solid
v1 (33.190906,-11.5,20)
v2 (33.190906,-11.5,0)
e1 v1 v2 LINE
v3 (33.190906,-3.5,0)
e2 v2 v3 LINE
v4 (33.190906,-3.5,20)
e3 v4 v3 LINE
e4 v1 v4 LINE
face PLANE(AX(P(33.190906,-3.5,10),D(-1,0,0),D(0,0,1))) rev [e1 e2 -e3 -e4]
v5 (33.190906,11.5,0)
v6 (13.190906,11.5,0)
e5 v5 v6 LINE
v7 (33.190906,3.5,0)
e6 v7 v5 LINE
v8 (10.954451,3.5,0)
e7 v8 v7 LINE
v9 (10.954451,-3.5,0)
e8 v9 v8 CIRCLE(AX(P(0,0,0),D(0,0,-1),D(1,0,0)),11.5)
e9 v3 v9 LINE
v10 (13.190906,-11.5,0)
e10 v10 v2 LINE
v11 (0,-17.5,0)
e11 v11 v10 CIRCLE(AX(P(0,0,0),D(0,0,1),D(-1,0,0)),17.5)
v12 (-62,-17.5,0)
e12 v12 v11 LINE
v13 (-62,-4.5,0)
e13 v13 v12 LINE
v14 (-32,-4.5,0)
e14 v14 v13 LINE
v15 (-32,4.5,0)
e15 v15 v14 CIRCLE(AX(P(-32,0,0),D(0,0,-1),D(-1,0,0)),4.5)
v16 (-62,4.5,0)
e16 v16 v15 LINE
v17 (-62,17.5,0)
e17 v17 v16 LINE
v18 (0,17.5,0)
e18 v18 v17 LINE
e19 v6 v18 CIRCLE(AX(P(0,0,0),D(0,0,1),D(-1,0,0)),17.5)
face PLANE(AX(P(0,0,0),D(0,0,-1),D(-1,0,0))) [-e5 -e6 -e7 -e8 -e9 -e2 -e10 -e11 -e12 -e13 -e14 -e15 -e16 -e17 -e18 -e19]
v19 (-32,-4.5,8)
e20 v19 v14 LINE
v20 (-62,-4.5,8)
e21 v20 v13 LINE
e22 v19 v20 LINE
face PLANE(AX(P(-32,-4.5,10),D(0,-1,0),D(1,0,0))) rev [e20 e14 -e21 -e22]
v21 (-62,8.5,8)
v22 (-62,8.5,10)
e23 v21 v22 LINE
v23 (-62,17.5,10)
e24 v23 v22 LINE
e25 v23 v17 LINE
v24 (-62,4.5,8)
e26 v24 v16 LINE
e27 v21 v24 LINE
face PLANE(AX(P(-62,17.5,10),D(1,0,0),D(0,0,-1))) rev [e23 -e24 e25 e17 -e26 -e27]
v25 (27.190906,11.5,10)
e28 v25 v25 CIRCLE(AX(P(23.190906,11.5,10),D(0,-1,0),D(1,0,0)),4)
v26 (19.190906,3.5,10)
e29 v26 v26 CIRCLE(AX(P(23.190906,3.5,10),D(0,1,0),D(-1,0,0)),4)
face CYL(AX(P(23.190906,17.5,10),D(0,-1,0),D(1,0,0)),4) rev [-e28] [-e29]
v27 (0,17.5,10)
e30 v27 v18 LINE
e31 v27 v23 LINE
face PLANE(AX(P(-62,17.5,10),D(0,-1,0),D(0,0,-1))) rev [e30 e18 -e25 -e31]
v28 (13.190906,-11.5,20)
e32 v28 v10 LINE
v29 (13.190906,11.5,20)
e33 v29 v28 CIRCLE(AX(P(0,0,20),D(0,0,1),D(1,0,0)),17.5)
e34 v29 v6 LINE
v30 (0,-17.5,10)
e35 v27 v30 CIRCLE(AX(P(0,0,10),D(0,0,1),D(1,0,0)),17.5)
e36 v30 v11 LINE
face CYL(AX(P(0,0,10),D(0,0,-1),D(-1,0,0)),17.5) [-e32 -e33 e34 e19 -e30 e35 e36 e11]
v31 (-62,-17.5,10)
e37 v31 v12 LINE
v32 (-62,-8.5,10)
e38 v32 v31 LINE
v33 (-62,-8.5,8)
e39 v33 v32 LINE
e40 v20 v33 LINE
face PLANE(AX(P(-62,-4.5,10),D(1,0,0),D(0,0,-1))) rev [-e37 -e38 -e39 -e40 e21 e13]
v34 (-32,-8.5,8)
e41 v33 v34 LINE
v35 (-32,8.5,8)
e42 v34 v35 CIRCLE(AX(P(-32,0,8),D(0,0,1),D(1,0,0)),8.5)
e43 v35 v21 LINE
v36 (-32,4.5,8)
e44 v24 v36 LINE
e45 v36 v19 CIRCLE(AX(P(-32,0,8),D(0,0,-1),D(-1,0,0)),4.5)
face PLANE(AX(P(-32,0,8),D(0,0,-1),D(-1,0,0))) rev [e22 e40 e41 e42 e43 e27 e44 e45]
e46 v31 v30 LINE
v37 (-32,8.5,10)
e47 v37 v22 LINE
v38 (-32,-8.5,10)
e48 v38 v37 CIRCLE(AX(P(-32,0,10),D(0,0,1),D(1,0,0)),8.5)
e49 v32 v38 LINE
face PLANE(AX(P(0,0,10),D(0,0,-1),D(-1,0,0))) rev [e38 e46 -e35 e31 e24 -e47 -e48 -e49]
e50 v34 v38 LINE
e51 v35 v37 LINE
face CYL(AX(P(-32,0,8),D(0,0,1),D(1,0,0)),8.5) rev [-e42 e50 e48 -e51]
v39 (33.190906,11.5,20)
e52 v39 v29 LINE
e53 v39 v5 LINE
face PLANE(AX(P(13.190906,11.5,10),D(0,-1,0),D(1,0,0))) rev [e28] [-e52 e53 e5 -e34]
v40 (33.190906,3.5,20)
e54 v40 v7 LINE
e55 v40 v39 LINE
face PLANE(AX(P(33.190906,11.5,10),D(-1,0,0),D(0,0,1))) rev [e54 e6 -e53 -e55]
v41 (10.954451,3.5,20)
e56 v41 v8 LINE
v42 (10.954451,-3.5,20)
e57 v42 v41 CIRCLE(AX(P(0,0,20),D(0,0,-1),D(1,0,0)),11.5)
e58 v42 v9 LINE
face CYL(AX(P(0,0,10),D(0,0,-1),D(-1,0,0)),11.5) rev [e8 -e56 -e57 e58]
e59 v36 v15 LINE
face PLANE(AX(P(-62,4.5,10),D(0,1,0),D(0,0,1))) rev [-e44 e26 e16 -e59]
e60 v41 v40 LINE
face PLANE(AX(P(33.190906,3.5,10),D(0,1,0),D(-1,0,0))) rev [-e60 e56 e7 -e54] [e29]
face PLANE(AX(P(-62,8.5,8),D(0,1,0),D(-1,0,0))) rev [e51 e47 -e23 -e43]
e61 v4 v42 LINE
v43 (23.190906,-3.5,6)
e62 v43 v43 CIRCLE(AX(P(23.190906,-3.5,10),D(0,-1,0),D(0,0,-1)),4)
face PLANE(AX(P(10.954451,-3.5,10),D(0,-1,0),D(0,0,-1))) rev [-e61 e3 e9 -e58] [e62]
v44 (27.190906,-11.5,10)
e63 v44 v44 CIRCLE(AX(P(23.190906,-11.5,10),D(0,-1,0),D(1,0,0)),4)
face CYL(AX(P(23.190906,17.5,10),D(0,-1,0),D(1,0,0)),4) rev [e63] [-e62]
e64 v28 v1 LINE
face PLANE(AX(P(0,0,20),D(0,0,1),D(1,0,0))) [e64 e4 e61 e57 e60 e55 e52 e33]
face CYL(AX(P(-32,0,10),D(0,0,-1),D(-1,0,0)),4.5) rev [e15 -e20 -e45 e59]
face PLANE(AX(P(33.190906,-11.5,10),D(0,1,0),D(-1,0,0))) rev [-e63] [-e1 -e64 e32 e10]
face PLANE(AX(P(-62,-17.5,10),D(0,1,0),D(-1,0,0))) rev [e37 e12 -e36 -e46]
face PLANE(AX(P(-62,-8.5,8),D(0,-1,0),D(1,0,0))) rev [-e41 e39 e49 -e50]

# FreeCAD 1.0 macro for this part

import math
import FreeCAD as App
import Part
import Sketcher
Q = App.Units.Quantity

doc = App.newDocument("Part")
body = doc.addObject("PartDesign::Body", "Body")

sketch1 = body.newObject("Sketcher::SketchObject", "Sketch")
sketch1.AttachmentSupport = (doc.getObject("XY_Plane"), [""])
sketch1.MapMode = "FlatFace"
sketch1.addGeometry(Part.LineSegment(App.Vector(-62, 17.5, 0), App.Vector(-62, 4.5, 0)), False)
sketch1.addGeometry(Part.LineSegment(App.Vector(-62, 4.5, 0), App.Vector(-32, 4.5, 0)), False)
sketch1.addGeometry(Part.ArcOfCircle(Part.Circle(App.Vector(-32, 0, 0), App.Vector(0, 0, 1), 4.5), math.radians(-90), math.radians(90)), False)
sketch1.addGeometry(Part.LineSegment(App.Vector(-32, -4.5, 0), App.Vector(-62, -4.5, 0)), False)
sketch1.addGeometry(Part.LineSegment(App.Vector(-62, -4.5, 0), App.Vector(-62, -17.5, 0)), False)
sketch1.addGeometry(Part.LineSegment(App.Vector(-62, -17.5, 0), App.Vector(0, -17.5, 0)), False)
sketch1.addGeometry(Part.ArcOfCircle(Part.Circle(App.Vector(0, 0, 0), App.Vector(0, 0, 1), 17.5), math.radians(-90), math.radians(-41)), False)
sketch1.addGeometry(Part.LineSegment(App.Vector(13.2, -11.5, 0), App.Vector(33.2, -11.5, 0)), False)
sketch1.addGeometry(Part.LineSegment(App.Vector(33.2, -11.5, 0), App.Vector(33.2, -3.5, 0)), False)
sketch1.addGeometry(Part.LineSegment(App.Vector(33.2, -3.5, 0), App.Vector(11, -3.5, 0)), False)
sketch1.addGeometry(Part.ArcOfCircle(Part.Circle(App.Vector(0, 0, 0), App.Vector(0, 0, 1), 11.5), math.radians(18), math.radians(342)), False)
sketch1.addGeometry(Part.LineSegment(App.Vector(11, 3.5, 0), App.Vector(33.2, 3.5, 0)), False)
sketch1.addGeometry(Part.LineSegment(App.Vector(33.2, 3.5, 0), App.Vector(33.2, 11.5, 0)), False)
sketch1.addGeometry(Part.LineSegment(App.Vector(33.2, 11.5, 0), App.Vector(13.2, 11.5, 0)), False)
sketch1.addGeometry(Part.ArcOfCircle(Part.Circle(App.Vector(0, 0, 0), App.Vector(0, 0, 1), 17.5), math.radians(41), math.radians(90)), False)
sketch1.addGeometry(Part.LineSegment(App.Vector(0, 17.5, 0), App.Vector(-62, 17.5, 0)), False)
sketch1.addConstraint(Sketcher.Constraint("Coincident", 0, 2, 1, 1))
sketch1.addConstraint(Sketcher.Constraint("Tangent", 1, 2, 2, 2))
sketch1.addConstraint(Sketcher.Constraint("Tangent", 2, 1, 3, 1))
sketch1.addConstraint(Sketcher.Constraint("Coincident", 3, 2, 4, 1))
sketch1.addConstraint(Sketcher.Constraint("Coincident", 4, 2, 5, 1))
sketch1.addConstraint(Sketcher.Constraint("Tangent", 5, 2, 6, 1))
sketch1.addConstraint(Sketcher.Constraint("Coincident", 6, 2, 7, 1))
sketch1.addConstraint(Sketcher.Constraint("Coincident", 7, 2, 8, 1))
sketch1.addConstraint(Sketcher.Constraint("Coincident", 8, 2, 9, 1))
sketch1.addConstraint(Sketcher.Constraint("Coincident", 9, 2, 10, 2))
sketch1.addConstraint(Sketcher.Constraint("Coincident", 10, 1, 11, 1))
sketch1.addConstraint(Sketcher.Constraint("Coincident", 11, 2, 12, 1))
sketch1.addConstraint(Sketcher.Constraint("Coincident", 12, 2, 13, 1))
sketch1.addConstraint(Sketcher.Constraint("Coincident", 13, 2, 14, 1))
sketch1.addConstraint(Sketcher.Constraint("Tangent", 14, 2, 15, 1))
sketch1.addConstraint(Sketcher.Constraint("Coincident", 15, 2, 0, 1))
sketch1.addConstraint(Sketcher.Constraint("Vertical", 0))
sketch1.addConstraint(Sketcher.Constraint("Horizontal", 1))
sketch1.addConstraint(Sketcher.Constraint("Horizontal", 3))
sketch1.addConstraint(Sketcher.Constraint("Vertical", 4))
sketch1.addConstraint(Sketcher.Constraint("Horizontal", 5))
sketch1.addConstraint(Sketcher.Constraint("Horizontal", 7))
sketch1.addConstraint(Sketcher.Constraint("Vertical", 8))
sketch1.addConstraint(Sketcher.Constraint("Horizontal", 9))
sketch1.addConstraint(Sketcher.Constraint("Horizontal", 11))
sketch1.addConstraint(Sketcher.Constraint("Vertical", 12))
sketch1.addConstraint(Sketcher.Constraint("Horizontal", 13))
sketch1.addConstraint(Sketcher.Constraint("Horizontal", 15))
sketch1.addConstraint(Sketcher.Constraint("Coincident", 6, 3, -1, 1))
sketch1.addConstraint(Sketcher.Constraint("Coincident", 10, 3, -1, 1))
sketch1.addConstraint(Sketcher.Constraint("Coincident", 14, 3, -1, 1))
sketch1.addConstraint(Sketcher.Constraint("Equal", 6, 14))
sketch1.addConstraint(Sketcher.Constraint("Symmetric", 0, 2, 3, 2, -1))
sketch1.addConstraint(Sketcher.Constraint("Symmetric", 8, 2, 11, 2, -1))
sketch1.addConstraint(Sketcher.Constraint("Vertical", 6, 2, 13, 2))
sketch1.addConstraint(Sketcher.Constraint("Radius", 2, Q("4.5 mm")))
sketch1.addConstraint(Sketcher.Constraint("Radius", 6, Q("17.5 mm")))
sketch1.addConstraint(Sketcher.Constraint("Radius", 10, Q("11.5 mm")))
sketch1.addConstraint(Sketcher.Constraint("DistanceX", 1, 1, 1, 2, Q("30 mm")))
sketch1.addConstraint(Sketcher.Constraint("DistanceX", 5, 1, 5, 2, Q("62 mm")))
sketch1.addConstraint(Sketcher.Constraint("DistanceX", 7, 1, 7, 2, Q("20 mm")))
sketch1.addConstraint(Sketcher.Constraint("DistanceY", 8, 1, 8, 2, Q("8 mm")))
sketch1.addConstraint(Sketcher.Constraint("DistanceY", 5, 2, 6, 2, Q("6 mm")))
pad1 = body.newObject("PartDesign::Pad", "Pad")
pad1.Profile = sketch1
pad1.Length = 10

sketch2 = body.newObject("Sketcher::SketchObject", "Sketch001")
sketch2.AttachmentSupport = (doc.getObject("XY_Plane"), [""])
sketch2.MapMode = "FlatFace"
sketch2.AttachmentOffset = App.Placement(App.Vector(0, 0, 10), App.Rotation())
sketch2.addGeometry(Part.LineSegment(App.Vector(33, 12, 0), App.Vector(13, 12, 0)), False)
sketch2.addGeometry(Part.ArcOfCircle(Part.Circle(App.Vector(0, 0, 0), App.Vector(0, 0, 1), 18), math.radians(41), math.radians(319)), False)
sketch2.addGeometry(Part.LineSegment(App.Vector(13, -12, 0), App.Vector(33, -12, 0)), False)
sketch2.addGeometry(Part.LineSegment(App.Vector(33, -12, 0), App.Vector(33, -4, 0)), False)
sketch2.addGeometry(Part.LineSegment(App.Vector(33, -4, 0), App.Vector(11, -4, 0)), False)
sketch2.addGeometry(Part.ArcOfCircle(Part.Circle(App.Vector(0, 0, 0), App.Vector(0, 0, 1), 12), math.radians(18), math.radians(342)), False)
sketch2.addGeometry(Part.LineSegment(App.Vector(11, 4, 0), App.Vector(33, 4, 0)), False)
sketch2.addGeometry(Part.LineSegment(App.Vector(33, 4, 0), App.Vector(33, 12, 0)), False)
sketch2.addConstraint(Sketcher.Constraint("Coincident", 0, 2, 1, 1))
sketch2.addConstraint(Sketcher.Constraint("Coincident", 1, 2, 2, 1))
sketch2.addConstraint(Sketcher.Constraint("Coincident", 2, 2, 3, 1))
sketch2.addConstraint(Sketcher.Constraint("Coincident", 3, 2, 4, 1))
sketch2.addConstraint(Sketcher.Constraint("Coincident", 4, 2, 5, 2))
sketch2.addConstraint(Sketcher.Constraint("Coincident", 5, 1, 6, 1))
sketch2.addConstraint(Sketcher.Constraint("Coincident", 6, 2, 7, 1))
sketch2.addConstraint(Sketcher.Constraint("Coincident", 7, 2, 0, 1))
sketch2.addConstraint(Sketcher.Constraint("Horizontal", 0))
sketch2.addConstraint(Sketcher.Constraint("Horizontal", 2))
sketch2.addConstraint(Sketcher.Constraint("Vertical", 3))
sketch2.addConstraint(Sketcher.Constraint("Horizontal", 4))
sketch2.addConstraint(Sketcher.Constraint("Horizontal", 6))
sketch2.addConstraint(Sketcher.Constraint("Vertical", 7))
sketch2.addConstraint(Sketcher.Constraint("Coincident", 1, 3, -1, 1))
sketch2.addConstraint(Sketcher.Constraint("Coincident", 5, 3, -1, 1))
sketch2.addConstraint(Sketcher.Constraint("Symmetric", 3, 2, 6, 2, -1))
sketch2.addConstraint(Sketcher.Constraint("Vertical", 0, 2, 1, 2))
sketch2.addConstraint(Sketcher.Constraint("Radius", 1, Q("17.5 mm")))
sketch2.addConstraint(Sketcher.Constraint("Radius", 5, Q("11.5 mm")))
sketch2.addConstraint(Sketcher.Constraint("DistanceX", 0, 2, 0, 1, Q("20 mm")))
sketch2.addConstraint(Sketcher.Constraint("DistanceY", 3, 1, 3, 2, Q("8 mm")))
sketch2.addConstraint(Sketcher.Constraint("DistanceY", 1, 2, 0, 2, Q("23 mm")))
pad2 = body.newObject("PartDesign::Pad", "Pad001")
pad2.Profile = sketch2
pad2.Length = 10

sketch3 = body.newObject("Sketcher::SketchObject", "Sketch002")
sketch3.AttachmentSupport = (doc.getObject("XY_Plane"), [""])
sketch3.MapMode = "FlatFace"
sketch3.AttachmentOffset = App.Placement(App.Vector(0, 0, 8), App.Rotation())
sketch3.addGeometry(Part.LineSegment(App.Vector(-62, 4.5, 0), App.Vector(-32, 4.5, 0)), False)
sketch3.addGeometry(Part.ArcOfCircle(Part.Circle(App.Vector(-32, 0, 0), App.Vector(0, 0, 1), 4.5), math.radians(-90), math.radians(90)), False)
sketch3.addGeometry(Part.LineSegment(App.Vector(-32, -4.5, 0), App.Vector(-62, -4.5, 0)), False)
sketch3.addGeometry(Part.LineSegment(App.Vector(-62, -4.5, 0), App.Vector(-62, -8.5, 0)), False)
sketch3.addGeometry(Part.LineSegment(App.Vector(-62, -8.5, 0), App.Vector(-32, -8.5, 0)), False)
sketch3.addGeometry(Part.ArcOfCircle(Part.Circle(App.Vector(-32, 0, 0), App.Vector(0, 0, 1), 8.5), math.radians(-90), math.radians(90)), False)
sketch3.addGeometry(Part.LineSegment(App.Vector(-32, 8.5, 0), App.Vector(-62, 8.5, 0)), False)
sketch3.addGeometry(Part.LineSegment(App.Vector(-62, 8.5, 0), App.Vector(-62, 4.5, 0)), False)
sketch3.addConstraint(Sketcher.Constraint("Tangent", 0, 2, 1, 2))
sketch3.addConstraint(Sketcher.Constraint("Tangent", 1, 1, 2, 1))
sketch3.addConstraint(Sketcher.Constraint("Coincident", 2, 2, 3, 1))
sketch3.addConstraint(Sketcher.Constraint("Coincident", 3, 2, 4, 1))
sketch3.addConstraint(Sketcher.Constraint("Tangent", 4, 2, 5, 1))
sketch3.addConstraint(Sketcher.Constraint("Tangent", 5, 2, 6, 1))
sketch3.addConstraint(Sketcher.Constraint("Coincident", 6, 2, 7, 1))
sketch3.addConstraint(Sketcher.Constraint("Coincident", 7, 2, 0, 1))
sketch3.addConstraint(Sketcher.Constraint("Horizontal", 0))
sketch3.addConstraint(Sketcher.Constraint("Horizontal", 2))
sketch3.addConstraint(Sketcher.Constraint("Vertical", 3))
sketch3.addConstraint(Sketcher.Constraint("Horizontal", 4))
sketch3.addConstraint(Sketcher.Constraint("Horizontal", 6))
sketch3.addConstraint(Sketcher.Constraint("Vertical", 7))
sketch3.addConstraint(Sketcher.Constraint("Coincident", 5, 3, 1, 3))
sketch3.addConstraint(Sketcher.Constraint("Symmetric", 3, 2, 6, 2, -1))
sketch3.addConstraint(Sketcher.Constraint("Radius", 1, Q("4.5 mm")))
sketch3.addConstraint(Sketcher.Constraint("Radius", 5, Q("8.5 mm")))
sketch3.addConstraint(Sketcher.Constraint("DistanceX", 0, 1, 0, 2, Q("30 mm")))
sketch3.addConstraint(Sketcher.Constraint("DistanceX", 1, 3, -1, 1, Q("32 mm")))
pocket1 = body.newObject("PartDesign::Pocket", "Pocket")
pocket1.Profile = sketch3
pocket1.Length = 2
pocket1.Reversed = True

sketch4 = body.newObject("Sketcher::SketchObject", "Sketch003")
sketch4.AttachmentSupport = (doc.getObject("XZ_Plane"), [""])
sketch4.MapMode = "FlatFace"
sketch4.AttachmentOffset = App.Placement(App.Vector(0, 0, 11.5), App.Rotation())
sketch4.addGeometry(Part.Circle(App.Vector(23.2, 10, 0), App.Vector(0, 0, 1), 4), False)
sketch4.addConstraint(Sketcher.Constraint("Diameter", 0, Q("8 mm")))
sketch4.addConstraint(Sketcher.Constraint("DistanceY", -1, 1, 0, 3, Q("10 mm")))
sketch4.addConstraint(Sketcher.Constraint("DistanceX", -1, 1, 0, 3, Q("23.190906 mm")))
pocket2 = body.newObject("PartDesign::Pocket", "Pocket001")
pocket2.Profile = sketch4
pocket2.Type = "ThroughAll"

doc.recompute()
